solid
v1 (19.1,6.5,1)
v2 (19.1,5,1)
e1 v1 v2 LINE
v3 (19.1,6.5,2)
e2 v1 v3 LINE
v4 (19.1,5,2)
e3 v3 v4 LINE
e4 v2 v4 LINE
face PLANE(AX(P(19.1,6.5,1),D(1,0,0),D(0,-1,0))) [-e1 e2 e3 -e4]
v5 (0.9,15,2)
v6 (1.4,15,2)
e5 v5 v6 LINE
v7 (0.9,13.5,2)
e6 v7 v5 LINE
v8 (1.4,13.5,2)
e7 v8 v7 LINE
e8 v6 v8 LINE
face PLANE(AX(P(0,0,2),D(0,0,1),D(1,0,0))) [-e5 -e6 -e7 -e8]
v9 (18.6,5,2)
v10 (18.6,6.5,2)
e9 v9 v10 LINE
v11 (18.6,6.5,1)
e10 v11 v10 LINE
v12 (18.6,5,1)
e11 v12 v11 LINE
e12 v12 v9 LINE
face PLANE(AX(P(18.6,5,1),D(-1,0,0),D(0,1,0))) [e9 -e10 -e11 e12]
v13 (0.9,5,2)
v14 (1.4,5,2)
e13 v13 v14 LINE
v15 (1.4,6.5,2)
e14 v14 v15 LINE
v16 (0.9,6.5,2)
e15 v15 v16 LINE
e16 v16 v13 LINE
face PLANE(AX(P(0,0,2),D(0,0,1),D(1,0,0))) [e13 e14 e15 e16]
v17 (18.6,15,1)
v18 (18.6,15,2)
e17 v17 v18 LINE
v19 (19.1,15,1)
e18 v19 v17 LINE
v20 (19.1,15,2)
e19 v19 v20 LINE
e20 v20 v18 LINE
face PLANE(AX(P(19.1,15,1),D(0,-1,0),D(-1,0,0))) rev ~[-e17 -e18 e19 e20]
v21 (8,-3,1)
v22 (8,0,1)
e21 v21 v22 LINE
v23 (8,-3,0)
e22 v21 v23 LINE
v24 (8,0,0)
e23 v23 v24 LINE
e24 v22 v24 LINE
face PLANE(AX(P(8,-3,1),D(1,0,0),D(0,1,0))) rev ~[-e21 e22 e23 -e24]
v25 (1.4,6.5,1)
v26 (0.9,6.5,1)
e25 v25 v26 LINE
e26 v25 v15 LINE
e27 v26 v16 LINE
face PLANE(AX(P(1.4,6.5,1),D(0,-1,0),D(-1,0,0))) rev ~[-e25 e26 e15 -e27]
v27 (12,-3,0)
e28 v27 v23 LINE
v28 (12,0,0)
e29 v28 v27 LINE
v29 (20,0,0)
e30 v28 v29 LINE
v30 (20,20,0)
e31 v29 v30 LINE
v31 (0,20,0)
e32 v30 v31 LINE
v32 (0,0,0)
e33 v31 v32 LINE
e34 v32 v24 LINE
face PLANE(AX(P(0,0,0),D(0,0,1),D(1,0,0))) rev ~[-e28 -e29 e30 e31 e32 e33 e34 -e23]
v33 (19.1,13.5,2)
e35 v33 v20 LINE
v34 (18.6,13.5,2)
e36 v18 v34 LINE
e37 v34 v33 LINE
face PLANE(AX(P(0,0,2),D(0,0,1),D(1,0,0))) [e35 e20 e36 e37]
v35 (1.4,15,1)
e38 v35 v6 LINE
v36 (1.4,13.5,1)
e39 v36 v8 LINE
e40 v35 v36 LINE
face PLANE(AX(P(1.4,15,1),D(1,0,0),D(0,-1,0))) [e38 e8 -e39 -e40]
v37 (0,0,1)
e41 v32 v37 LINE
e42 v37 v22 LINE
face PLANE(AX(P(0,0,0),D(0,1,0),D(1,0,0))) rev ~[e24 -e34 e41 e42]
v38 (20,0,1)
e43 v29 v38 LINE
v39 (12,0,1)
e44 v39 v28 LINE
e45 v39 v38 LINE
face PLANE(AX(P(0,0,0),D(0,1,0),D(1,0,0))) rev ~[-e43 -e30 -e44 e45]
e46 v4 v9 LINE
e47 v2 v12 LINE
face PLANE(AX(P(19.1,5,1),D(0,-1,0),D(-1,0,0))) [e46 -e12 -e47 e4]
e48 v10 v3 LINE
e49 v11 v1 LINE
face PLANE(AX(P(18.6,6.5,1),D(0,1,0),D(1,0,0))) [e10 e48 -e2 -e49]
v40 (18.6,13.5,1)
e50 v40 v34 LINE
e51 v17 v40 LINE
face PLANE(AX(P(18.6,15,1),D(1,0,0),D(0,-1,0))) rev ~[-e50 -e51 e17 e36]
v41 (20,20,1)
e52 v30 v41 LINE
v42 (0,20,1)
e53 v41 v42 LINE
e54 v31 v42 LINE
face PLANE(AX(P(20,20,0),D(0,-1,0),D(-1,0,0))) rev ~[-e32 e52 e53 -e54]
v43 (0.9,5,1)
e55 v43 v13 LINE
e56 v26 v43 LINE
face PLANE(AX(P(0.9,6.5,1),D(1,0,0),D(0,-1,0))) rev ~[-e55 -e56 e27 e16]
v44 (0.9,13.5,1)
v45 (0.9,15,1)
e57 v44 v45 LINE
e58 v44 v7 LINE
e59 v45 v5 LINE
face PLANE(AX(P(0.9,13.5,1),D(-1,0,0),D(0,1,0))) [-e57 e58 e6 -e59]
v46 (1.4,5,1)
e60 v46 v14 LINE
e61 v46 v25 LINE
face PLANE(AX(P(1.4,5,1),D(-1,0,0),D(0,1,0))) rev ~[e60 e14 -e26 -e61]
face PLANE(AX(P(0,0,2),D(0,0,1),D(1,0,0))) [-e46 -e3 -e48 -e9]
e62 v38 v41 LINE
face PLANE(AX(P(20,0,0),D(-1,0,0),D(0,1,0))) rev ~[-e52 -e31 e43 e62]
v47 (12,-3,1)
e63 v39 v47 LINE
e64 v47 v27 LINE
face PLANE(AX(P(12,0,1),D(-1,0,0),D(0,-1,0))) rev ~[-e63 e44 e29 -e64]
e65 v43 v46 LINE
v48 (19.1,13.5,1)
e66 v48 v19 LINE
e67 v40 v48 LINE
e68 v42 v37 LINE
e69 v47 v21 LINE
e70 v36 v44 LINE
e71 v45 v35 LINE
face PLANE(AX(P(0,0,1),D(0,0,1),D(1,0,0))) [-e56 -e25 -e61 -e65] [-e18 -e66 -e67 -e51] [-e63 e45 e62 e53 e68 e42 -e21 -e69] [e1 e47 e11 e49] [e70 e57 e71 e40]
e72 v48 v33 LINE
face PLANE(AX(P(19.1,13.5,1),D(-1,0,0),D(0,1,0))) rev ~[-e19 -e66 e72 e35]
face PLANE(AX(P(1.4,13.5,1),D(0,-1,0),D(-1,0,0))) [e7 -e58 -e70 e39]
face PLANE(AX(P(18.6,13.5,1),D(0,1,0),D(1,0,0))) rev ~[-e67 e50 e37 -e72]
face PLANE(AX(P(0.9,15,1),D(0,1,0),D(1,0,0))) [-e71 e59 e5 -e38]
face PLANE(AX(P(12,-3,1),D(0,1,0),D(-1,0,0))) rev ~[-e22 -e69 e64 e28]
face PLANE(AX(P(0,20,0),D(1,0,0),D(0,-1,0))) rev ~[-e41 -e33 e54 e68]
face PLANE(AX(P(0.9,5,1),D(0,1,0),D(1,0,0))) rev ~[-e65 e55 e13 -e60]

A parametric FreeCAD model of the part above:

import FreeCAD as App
import Part
import Sketcher
Q = App.Units.Quantity

doc = App.newDocument("Part")
body = doc.addObject("PartDesign::Body", "Body")

# Sketch on XY plane
sketch1 = body.newObject("Sketcher::SketchObject", "Sketch")
sketch1.AttachmentSupport = (doc.getObject("XY_Plane"), [""])
sketch1.MapMode = "FlatFace"
sketch1.addGeometry([
    Part.LineSegment(App.Vector(0, 20, 0), App.Vector(0, 0, 0)),
    Part.LineSegment(App.Vector(0, 0, 0), App.Vector(20, 0, 0)),
    Part.LineSegment(App.Vector(20, 0, 0), App.Vector(20, 20, 0)),
    Part.LineSegment(App.Vector(20, 20, 0), App.Vector(0, 20, 0)),
], False)
sketch1.addConstraint([
    Sketcher.Constraint("Coincident", 0, 2, 1, 1),
    Sketcher.Constraint("Coincident", 1, 2, 2, 1),
    Sketcher.Constraint("Coincident", 2, 2, 3, 1),
    Sketcher.Constraint("Coincident", 3, 2, 0, 1),
    Sketcher.Constraint("Vertical", 0),
    Sketcher.Constraint("Horizontal", 1),
    Sketcher.Constraint("Vertical", 2),
    Sketcher.Constraint("Horizontal", 3),
    Sketcher.Constraint("Coincident", 0, 2, -1, 1),
    Sketcher.Constraint("Equal", 3, 0),
    Sketcher.Constraint("DistanceX", 1, 1, 1, 2, Q("20 mm")),
])
pad1 = body.newObject("PartDesign::Pad", "Pad")
pad1.Profile = sketch1
pad1.Length = 1

# Sketch on XY plane
sketch2 = body.newObject("Sketcher::SketchObject", "Sketch001")
sketch2.AttachmentSupport = (doc.getObject("XY_Plane"), [""])
sketch2.MapMode = "FlatFace"
sketch2.AttachmentOffset = App.Placement(App.Vector(0, 0, 1), App.Rotation())
sketch2.addGeometry([
    Part.LineSegment(App.Vector(1.4, 15, 0), App.Vector(0.9, 15, 0)),  # 0
    Part.LineSegment(App.Vector(0.9, 15, 0), App.Vector(0.9, 13.5, 0)),  # 1
    Part.LineSegment(App.Vector(0.9, 13.5, 0), App.Vector(1.4, 13.5, 0)),  # 2
    Part.LineSegment(App.Vector(1.4, 13.5, 0), App.Vector(1.4, 15, 0)),  # 3
    Part.LineSegment(App.Vector(0.9, 6.5, 0), App.Vector(0.9, 5, 0)),  # 4
    Part.LineSegment(App.Vector(0.9, 5, 0), App.Vector(1.4, 5, 0)),  # 5
    Part.LineSegment(App.Vector(1.4, 5, 0), App.Vector(1.4, 6.5, 0)),  # 6
    Part.LineSegment(App.Vector(1.4, 6.5, 0), App.Vector(0.9, 6.5, 0)),  # 7
    Part.LineSegment(App.Vector(19.1, 13.5, 0), App.Vector(19.1, 15, 0)),  # 8
    Part.LineSegment(App.Vector(19.1, 15, 0), App.Vector(18.6, 15, 0)),  # 9
    Part.LineSegment(App.Vector(18.6, 15, 0), App.Vector(18.6, 13.5, 0)),  # 10
    Part.LineSegment(App.Vector(18.6, 13.5, 0), App.Vector(19.1, 13.5, 0)),  # 11
    Part.LineSegment(App.Vector(18.6, 5, 0), App.Vector(19.1, 5, 0)),  # 12
    Part.LineSegment(App.Vector(19.1, 5, 0), App.Vector(19.1, 6.5, 0)),  # 13
    Part.LineSegment(App.Vector(19.1, 6.5, 0), App.Vector(18.6, 6.5, 0)),  # 14
    Part.LineSegment(App.Vector(18.6, 6.5, 0), App.Vector(18.6, 5, 0)),  # 15
], False)
sketch2.addConstraint([
    Sketcher.Constraint("Coincident", 0, 2, 1, 1),
    Sketcher.Constraint("Coincident", 1, 2, 2, 1),
    Sketcher.Constraint("Coincident", 2, 2, 3, 1),
    Sketcher.Constraint("Coincident", 3, 2, 0, 1),
    Sketcher.Constraint("Coincident", 4, 2, 5, 1),
    Sketcher.Constraint("Coincident", 5, 2, 6, 1),
    Sketcher.Constraint("Coincident", 6, 2, 7, 1),
    Sketcher.Constraint("Coincident", 7, 2, 4, 1),
    Sketcher.Constraint("Coincident", 8, 2, 9, 1),
    Sketcher.Constraint("Coincident", 9, 2, 10, 1),
    Sketcher.Constraint("Coincident", 10, 2, 11, 1),
    Sketcher.Constraint("Coincident", 11, 2, 8, 1),
    Sketcher.Constraint("Coincident", 12, 2, 13, 1),
    Sketcher.Constraint("Coincident", 13, 2, 14, 1),
    Sketcher.Constraint("Coincident", 14, 2, 15, 1),
    Sketcher.Constraint("Coincident", 15, 2, 12, 1),
    Sketcher.Constraint("Horizontal", 0),
    Sketcher.Constraint("Vertical", 1),
    Sketcher.Constraint("Horizontal", 2),
    Sketcher.Constraint("Vertical", 3),
    Sketcher.Constraint("Vertical", 4),
    Sketcher.Constraint("Horizontal", 5),
    Sketcher.Constraint("Vertical", 6),
    Sketcher.Constraint("Horizontal", 7),
    Sketcher.Constraint("Vertical", 8),
    Sketcher.Constraint("Horizontal", 9),
    Sketcher.Constraint("Vertical", 10),
    Sketcher.Constraint("Horizontal", 11),
    Sketcher.Constraint("Horizontal", 12),
    Sketcher.Constraint("Vertical", 13),
    Sketcher.Constraint("Horizontal", 14),
    Sketcher.Constraint("Vertical", 15),
    Sketcher.Constraint("Horizontal", 3, 2, 8, 2),
    Sketcher.Constraint("Horizontal", 2, 2, 10, 2),
    Sketcher.Constraint("Horizontal", 5, 2, 12, 2),
    Sketcher.Constraint("Horizontal", 7, 2, 13, 2),
    Sketcher.Constraint("Vertical", 1, 2, 4, 2),
    Sketcher.Constraint("Vertical", 3, 2, 5, 2),
    Sketcher.Constraint("Vertical", 11, 2, 12, 2),
    Sketcher.Constraint("Vertical", 10, 2, 14, 2),
    Sketcher.Constraint("Equal", 7, 9),
    Sketcher.Constraint("Equal", 3, 4),
    Sketcher.Constraint("DistanceX", 0, 2, 0, 1, Q("0.5 mm")),
    Sketcher.Constraint("DistanceY", 1, 2, 1, 1, Q("1.5 mm")),
    Sketcher.Constraint("DistanceY", -1, 1, 4, 2, Q("5 mm")),
    Sketcher.Constraint("DistanceX", -1, 1, 0, 2, Q("0.9 mm")),
    Sketcher.Constraint("DistanceY", -1, 1, 0, 2, Q("15 mm")),
    Sketcher.Constraint("DistanceX", -1, 1, 8, 2, Q("19.1 mm")),
])
pad2 = body.newObject("PartDesign::Pad", "Pad001")
pad2.Profile = sketch2
pad2.Length = 1

# Sketch on XY plane
sketch3 = body.newObject("Sketcher::SketchObject", "Sketch002")
sketch3.AttachmentSupport = (doc.getObject("XY_Plane"), [""])
sketch3.MapMode = "FlatFace"
sketch3.AttachmentOffset = App.Placement(App.Vector(0, 0, 1), App.Rotation())
sketch3.addGeometry([
    Part.LineSegment(App.Vector(12, 0, 0), App.Vector(8, 0, 0)),
    Part.LineSegment(App.Vector(8, 0, 0), App.Vector(8, -3, 0)),
    Part.LineSegment(App.Vector(8, -3, 0), App.Vector(12, -3, 0)),
    Part.LineSegment(App.Vector(12, -3, 0), App.Vector(12, 0, 0)),
], False)
sketch3.addConstraint([
    Sketcher.Constraint("Coincident", 0, 2, 1, 1),
    Sketcher.Constraint("Coincident", 1, 2, 2, 1),
    Sketcher.Constraint("Coincident", 2, 2, 3, 1),
    Sketcher.Constraint("Coincident", 3, 2, 0, 1),
    Sketcher.Constraint("Horizontal", 0),
    Sketcher.Constraint("Vertical", 1),
    Sketcher.Constraint("Horizontal", 2),
    Sketcher.Constraint("Vertical", 3),
    Sketcher.Constraint("PointOnObject", 0, 2, -1),
    Sketcher.Constraint("DistanceY", 1, 2, 1, 1, Q("3 mm")),
    Sketcher.Constraint("DistanceX", -1, 1, 0, 2, Q("8 mm")),
    Sketcher.Constraint("DistanceX", 0, 2, 0, 1, Q("4 mm")),
])
pad3 = body.newObject("PartDesign::Pad", "Pad002")
pad3.Profile = sketch3
pad3.Length = 1
pad3.Reversed = True

doc.recompute()
